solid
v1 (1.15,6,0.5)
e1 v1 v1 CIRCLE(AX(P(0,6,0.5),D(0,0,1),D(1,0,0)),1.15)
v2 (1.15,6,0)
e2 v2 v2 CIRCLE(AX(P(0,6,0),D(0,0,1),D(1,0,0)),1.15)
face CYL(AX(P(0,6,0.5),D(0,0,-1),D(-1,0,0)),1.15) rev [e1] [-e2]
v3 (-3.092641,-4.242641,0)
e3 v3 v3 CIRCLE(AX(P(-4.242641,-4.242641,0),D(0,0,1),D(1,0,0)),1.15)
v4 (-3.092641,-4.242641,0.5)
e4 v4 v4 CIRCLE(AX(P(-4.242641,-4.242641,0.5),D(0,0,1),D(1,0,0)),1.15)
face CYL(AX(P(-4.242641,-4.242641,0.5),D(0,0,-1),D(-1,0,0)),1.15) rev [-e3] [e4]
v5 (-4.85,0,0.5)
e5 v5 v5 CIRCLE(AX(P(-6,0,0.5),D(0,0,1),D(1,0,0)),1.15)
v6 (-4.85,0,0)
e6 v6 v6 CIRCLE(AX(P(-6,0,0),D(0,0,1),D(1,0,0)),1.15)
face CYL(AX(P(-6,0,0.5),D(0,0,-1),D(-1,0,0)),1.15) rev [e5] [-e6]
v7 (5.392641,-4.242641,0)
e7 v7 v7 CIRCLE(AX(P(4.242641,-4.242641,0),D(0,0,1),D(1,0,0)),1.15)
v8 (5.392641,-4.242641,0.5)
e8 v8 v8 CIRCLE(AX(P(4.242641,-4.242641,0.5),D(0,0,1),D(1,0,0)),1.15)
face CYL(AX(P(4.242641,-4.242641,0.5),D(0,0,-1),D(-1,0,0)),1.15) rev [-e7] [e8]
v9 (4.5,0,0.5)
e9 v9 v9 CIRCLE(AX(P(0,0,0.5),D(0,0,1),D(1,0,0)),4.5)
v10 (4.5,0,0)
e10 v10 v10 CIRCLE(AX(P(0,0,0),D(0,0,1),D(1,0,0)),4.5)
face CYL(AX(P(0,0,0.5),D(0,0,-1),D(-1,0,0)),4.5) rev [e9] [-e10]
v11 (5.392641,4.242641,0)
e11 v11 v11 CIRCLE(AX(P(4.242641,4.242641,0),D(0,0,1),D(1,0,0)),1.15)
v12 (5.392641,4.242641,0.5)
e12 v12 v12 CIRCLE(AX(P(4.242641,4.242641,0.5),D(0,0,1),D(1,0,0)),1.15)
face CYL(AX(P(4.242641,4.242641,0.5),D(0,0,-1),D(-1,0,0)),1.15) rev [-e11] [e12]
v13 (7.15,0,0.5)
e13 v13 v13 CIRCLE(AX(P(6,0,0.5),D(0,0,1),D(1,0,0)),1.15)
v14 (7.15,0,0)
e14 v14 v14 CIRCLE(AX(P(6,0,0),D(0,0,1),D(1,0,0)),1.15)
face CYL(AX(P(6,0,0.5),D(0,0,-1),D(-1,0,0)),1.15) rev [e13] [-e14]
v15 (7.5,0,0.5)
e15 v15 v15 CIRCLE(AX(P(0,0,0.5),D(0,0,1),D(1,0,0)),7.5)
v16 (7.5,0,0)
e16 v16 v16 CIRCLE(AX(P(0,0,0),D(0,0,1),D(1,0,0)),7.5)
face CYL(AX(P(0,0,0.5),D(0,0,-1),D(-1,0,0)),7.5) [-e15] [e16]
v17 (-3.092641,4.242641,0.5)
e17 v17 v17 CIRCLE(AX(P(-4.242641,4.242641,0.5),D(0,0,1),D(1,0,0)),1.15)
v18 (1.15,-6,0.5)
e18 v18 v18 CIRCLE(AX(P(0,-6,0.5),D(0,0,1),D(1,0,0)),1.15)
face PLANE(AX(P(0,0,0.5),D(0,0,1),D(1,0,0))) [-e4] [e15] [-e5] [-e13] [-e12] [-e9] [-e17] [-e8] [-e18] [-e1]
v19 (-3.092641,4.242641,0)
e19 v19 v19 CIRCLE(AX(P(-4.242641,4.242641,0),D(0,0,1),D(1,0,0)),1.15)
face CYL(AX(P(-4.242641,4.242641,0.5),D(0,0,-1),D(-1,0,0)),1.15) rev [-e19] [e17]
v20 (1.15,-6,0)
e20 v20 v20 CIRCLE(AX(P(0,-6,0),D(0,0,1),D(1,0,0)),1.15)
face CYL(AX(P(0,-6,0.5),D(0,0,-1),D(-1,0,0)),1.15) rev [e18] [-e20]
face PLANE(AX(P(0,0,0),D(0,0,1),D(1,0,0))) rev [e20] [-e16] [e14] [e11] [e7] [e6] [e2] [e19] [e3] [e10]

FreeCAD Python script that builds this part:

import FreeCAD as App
import Part
import Sketcher
from FreeCAD import Vector
Q = App.Units.Quantity

doc = App.newDocument("Part")
body = doc.addObject("PartDesign::Body", "Body")

sketch1 = body.newObject("Sketcher::SketchObject", "Sketch")
sketch1.AttachmentSupport = (doc.getObject("XY_Plane"), [""])
sketch1.MapMode = "FlatFace"
sketch1.addGeometry(Part.Circle(Vector(0, 0, 0), Vector(0, 0, 1), 7.5), False)
sketch1.addGeometry(Part.Circle(Vector(-4.2, -4.2, 0), Vector(0, 0, 1), 1.1), False)
sketch1.addGeometry(Part.Circle(Vector(0, -6, 0), Vector(0, 0, 1), 1.1), False)
sketch1.addGeometry(Part.Circle(Vector(-6, 0, 0), Vector(0, 0, 1), 1.1), False)
sketch1.addGeometry(Part.Circle(Vector(0, 0, 0), Vector(0, 0, 1), 4.5), False)
sketch1.addGeometry(Part.Circle(Vector(4.2, -4.2, 0), Vector(0, 0, 1), 1.1), False)
sketch1.addGeometry(Part.Circle(Vector(6, 0, 0), Vector(0, 0, 1), 1.1), False)
sketch1.addGeometry(Part.Circle(Vector(-4.2, 4.2, 0), Vector(0, 0, 1), 1.1), False)
sketch1.addGeometry(Part.Circle(Vector(0, 6, 0), Vector(0, 0, 1), 1.1), False)
sketch1.addGeometry(Part.Circle(Vector(4.2, 4.2, 0), Vector(0, 0, 1), 1.1), False)
sketch1.addConstraint(Sketcher.Constraint("Coincident", 0, 3, -1, 1))
sketch1.addConstraint(Sketcher.Constraint("Coincident", 4, 3, -1, 1))
sketch1.addConstraint(Sketcher.Constraint("Equal", 1, 2))
sketch1.addConstraint(Sketcher.Constraint("Equal", 2, 3))
sketch1.addConstraint(Sketcher.Constraint("Equal", 3, 5))
sketch1.addConstraint(Sketcher.Constraint("Equal", 5, 6))
sketch1.addConstraint(Sketcher.Constraint("Equal", 6, 7))
sketch1.addConstraint(Sketcher.Constraint("Equal", 7, 8))
sketch1.addConstraint(Sketcher.Constraint("Equal", 8, 9))
sketch1.addConstraint(Sketcher.Constraint("Symmetric", 3, 3, 6, 3, -1, 1))
sketch1.addConstraint(Sketcher.Constraint("Symmetric", 5, 3, 7, 3, -1, 1))
sketch1.addConstraint(Sketcher.Constraint("Symmetric", 2, 3, 8, 3, -1, 1))
sketch1.addConstraint(Sketcher.Constraint("Symmetric", 1, 3, 9, 3, -1, 1))
sketch1.addConstraint(Sketcher.Constraint("Symmetric", 1, 3, 5, 3, -2))
sketch1.addConstraint(Sketcher.Constraint("PointOnObject", 2, 3, -2))
sketch1.addConstraint(Sketcher.Constraint("PointOnObject", 3, 3, -1))
sketch1.addConstraint(Sketcher.Constraint("Diameter", 0, Q("15 mm")))
sketch1.addConstraint(Sketcher.Constraint("Diameter", 4, Q("9 mm")))
sketch1.addConstraint(Sketcher.Constraint("Diameter", 1, Q("2.3 mm")))
sketch1.addConstraint(Sketcher.Constraint("DistanceY", 2, 3, -1, 1, Q("6 mm")))
sketch1.addConstraint(Sketcher.Constraint("DistanceX", 3, 3, -1, 1, Q("6 mm")))
sketch1.addConstraint(Sketcher.Constraint("DistanceX", 1, 3, -1, 1, Q("4.242641 mm")))
sketch1.addConstraint(Sketcher.Constraint("DistanceY", 1, 3, -1, 1, Q("4.242641 mm")))
pad1 = body.newObject("PartDesign::Pad", "Pad")
pad1.Profile = sketch1
pad1.Length = 0.5

doc.recompute()
